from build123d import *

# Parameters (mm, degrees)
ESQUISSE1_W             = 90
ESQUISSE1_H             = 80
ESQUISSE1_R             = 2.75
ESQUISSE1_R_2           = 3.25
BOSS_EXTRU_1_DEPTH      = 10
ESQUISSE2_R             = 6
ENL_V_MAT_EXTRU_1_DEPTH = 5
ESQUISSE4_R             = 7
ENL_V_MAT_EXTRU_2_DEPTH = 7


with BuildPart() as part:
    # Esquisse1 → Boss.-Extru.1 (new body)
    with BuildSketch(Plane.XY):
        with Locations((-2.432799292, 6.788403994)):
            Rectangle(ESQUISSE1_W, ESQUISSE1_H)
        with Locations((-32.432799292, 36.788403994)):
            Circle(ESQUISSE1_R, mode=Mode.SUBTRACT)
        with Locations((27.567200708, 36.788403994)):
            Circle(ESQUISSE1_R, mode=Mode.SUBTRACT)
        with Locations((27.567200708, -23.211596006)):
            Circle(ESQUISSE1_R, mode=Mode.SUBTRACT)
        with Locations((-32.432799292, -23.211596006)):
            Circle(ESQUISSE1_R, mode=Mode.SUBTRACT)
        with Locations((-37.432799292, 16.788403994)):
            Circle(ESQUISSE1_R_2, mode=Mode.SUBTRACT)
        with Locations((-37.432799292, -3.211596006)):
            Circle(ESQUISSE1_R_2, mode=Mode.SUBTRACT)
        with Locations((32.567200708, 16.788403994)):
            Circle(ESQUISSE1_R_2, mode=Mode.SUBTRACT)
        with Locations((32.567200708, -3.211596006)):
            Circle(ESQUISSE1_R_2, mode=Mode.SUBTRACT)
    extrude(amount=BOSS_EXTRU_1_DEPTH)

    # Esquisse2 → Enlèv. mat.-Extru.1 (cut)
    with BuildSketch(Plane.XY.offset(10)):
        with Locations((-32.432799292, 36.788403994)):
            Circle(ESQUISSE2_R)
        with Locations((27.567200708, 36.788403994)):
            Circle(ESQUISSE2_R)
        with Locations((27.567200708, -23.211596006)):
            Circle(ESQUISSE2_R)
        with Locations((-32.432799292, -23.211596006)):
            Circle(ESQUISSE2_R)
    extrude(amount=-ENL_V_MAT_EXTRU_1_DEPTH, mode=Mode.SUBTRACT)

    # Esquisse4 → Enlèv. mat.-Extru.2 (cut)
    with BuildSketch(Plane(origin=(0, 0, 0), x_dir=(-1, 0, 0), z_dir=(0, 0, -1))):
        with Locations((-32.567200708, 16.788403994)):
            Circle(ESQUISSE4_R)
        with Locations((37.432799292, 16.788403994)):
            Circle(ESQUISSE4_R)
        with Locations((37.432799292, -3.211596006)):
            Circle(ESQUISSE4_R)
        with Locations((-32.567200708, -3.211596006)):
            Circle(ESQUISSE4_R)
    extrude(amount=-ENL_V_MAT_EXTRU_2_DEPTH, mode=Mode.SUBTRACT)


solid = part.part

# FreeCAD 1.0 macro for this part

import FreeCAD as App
import Part
import Sketcher
from FreeCAD import Vector

doc = App.newDocument("Part")
body = doc.addObject("PartDesign::Body", "Body")

# Sketch on XY plane
sketch1 = body.newObject("Sketcher::SketchObject", "Sketch")
sketch1.AttachmentSupport = (doc.getObject("XY_Plane"), [""])
sketch1.MapMode = "FlatFace"
sketch1.addGeometry([
    Part.LineSegment(Vector(-47.432799, 46.788404, 0), Vector(-47.432799, -33.211596, 0)),  # 0
    Part.LineSegment(Vector(-47.432799, -33.211596, 0), Vector(42.567201, -33.211596, 0)),  # 1
    Part.LineSegment(Vector(42.567201, -33.211596, 0), Vector(42.567201, 46.788404, 0)),  # 2
    Part.LineSegment(Vector(42.567201, 46.788404, 0), Vector(-47.432799, 46.788404, 0)),  # 3
    Part.Circle(Vector(-32.432799, -23.211596, 0), Vector(0, 0, 1), 2.75),  # 4
    Part.Circle(Vector(-37.432799, -3.211596, 0), Vector(0, 0, 1), 3.25),  # 5
    Part.Circle(Vector(27.567201, -23.211596, 0), Vector(0, 0, 1), 2.75),  # 6
    Part.Circle(Vector(32.567201, -3.211596, 0), Vector(0, 0, 1), 3.25),  # 7
    Part.Circle(Vector(-37.432799, 16.788404, 0), Vector(0, 0, 1), 3.25),  # 8
    Part.Circle(Vector(-32.432799, 36.788404, 0), Vector(0, 0, 1), 2.75),  # 9
    Part.Circle(Vector(32.567201, 16.788404, 0), Vector(0, 0, 1), 3.25),  # 10
    Part.Circle(Vector(27.567201, 36.788404, 0), Vector(0, 0, 1), 2.75),  # 11
], False)
sketch1.addConstraint([
    Sketcher.Constraint("Coincident", 0, 2, 1, 1),
    Sketcher.Constraint("Coincident", 1, 2, 2, 1),
    Sketcher.Constraint("Coincident", 2, 2, 3, 1),
    Sketcher.Constraint("Coincident", 3, 2, 0, 1),
    Sketcher.Constraint("Vertical", 0),
    Sketcher.Constraint("Horizontal", 1),
    Sketcher.Constraint("Vertical", 2),
    Sketcher.Constraint("Horizontal", 3),
    Sketcher.Constraint("Equal", 4, 6),
    Sketcher.Constraint("Equal", 5, 7),
    Sketcher.Constraint("Equal", 7, 8),
    Sketcher.Constraint("Equal", 6, 9),
    Sketcher.Constraint("Equal", 8, 10),
    Sketcher.Constraint("Equal", 9, 11),
    Sketcher.Constraint("Horizontal", 4, 3, 6, 3),
    Sketcher.Constraint("Horizontal", 5, 3, 7, 3),
    Sketcher.Constraint("Horizontal", 8, 3, 10, 3),
    Sketcher.Constraint("Horizontal", 9, 3, 11, 3),
    Sketcher.Constraint("Vertical", 5, 3, 8, 3),
    Sketcher.Constraint("Vertical", 4, 3, 9, 3),
    Sketcher.Constraint("Vertical", 7, 3, 10, 3),
    Sketcher.Constraint("Vertical", 6, 3, 11, 3),
    Sketcher.Constraint("Diameter", 4, 5.5),
    Sketcher.Constraint("Diameter", 5, 6.5),
    Sketcher.Constraint("DistanceX", 1, 1, 1, 2, 90.0),
    Sketcher.Constraint("DistanceY", 0, 2, 0, 1, 80.0),
    Sketcher.Constraint("DistanceX", 5, 3, 4, 3, 5.0),
    Sketcher.Constraint("DistanceY", 4, 3, 5, 3, 20.0),
    Sketcher.Constraint("DistanceX", 4, 3, 6, 3, 60.0),
    Sketcher.Constraint("DistanceX", 6, 3, 7, 3, 5.0),
    Sketcher.Constraint("DistanceY", 5, 3, 8, 3, 20.0),
    Sketcher.Constraint("DistanceY", 8, 3, 9, 3, 20.0),
    Sketcher.Constraint("DistanceX", 0, 2, 4, 3, 15.0),
    Sketcher.Constraint("DistanceY", 0, 2, 4, 3, 10.0),
    Sketcher.Constraint("DistanceX", 4, 3, -1, 1, 32.432799),
    Sketcher.Constraint("DistanceY", 4, 3, -1, 1, 23.211596),
])
pad1 = body.newObject("PartDesign::Pad", "Pad")
pad1.Profile = sketch1
pad1.Length = 10

# Sketch on XY plane
sketch2 = body.newObject("Sketcher::SketchObject", "Sketch001")
sketch2.AttachmentSupport = (doc.getObject("XY_Plane"), [""])
sketch2.MapMode = "FlatFace"
sketch2.AttachmentOffset = App.Placement(Vector(0, 0, 10), App.Rotation())
sketch2.addGeometry([
    Part.Circle(Vector(-32.432799, 36.788404, 0), Vector(0, 0, 1), 6),
    Part.Circle(Vector(27.567201, 36.788404, 0), Vector(0, 0, 1), 6),
    Part.Circle(Vector(27.567201, -23.211596, 0), Vector(0, 0, 1), 6),
    Part.Circle(Vector(-32.432799, -23.211596, 0), Vector(0, 0, 1), 6),
], False)
sketch2.addConstraint([
    Sketcher.Constraint("Equal", 0, 1),
    Sketcher.Constraint("Equal", 1, 2),
    Sketcher.Constraint("Equal", 2, 3),
    Sketcher.Constraint("Horizontal", 0, 3, 1, 3),
    Sketcher.Constraint("Horizontal", 2, 3, 3, 3),
    Sketcher.Constraint("Vertical", 1, 3, 2, 3),
    Sketcher.Constraint("Vertical", 0, 3, 3, 3),
    Sketcher.Constraint("Diameter", 0, 12.0),
    Sketcher.Constraint("DistanceX", 0, 3, 1, 3, 60.0),
    Sketcher.Constraint("DistanceY", 2, 3, 1, 3, 60.0),
    Sketcher.Constraint("DistanceX", 0, 3, -1, 1, 32.432799),
    Sketcher.Constraint("DistanceY", -1, 1, 0, 3, 36.788404),
])
pocket1 = body.newObject("PartDesign::Pocket", "Pocket")
pocket1.Profile = sketch2
pocket1.Length = 5

# Sketch on XY plane
sketch3 = body.newObject("Sketcher::SketchObject", "Sketch002")
sketch3.AttachmentSupport = (doc.getObject("XY_Plane"), [""])
sketch3.MapMode = "FlatFace"
sketch3.addGeometry([
    Part.Circle(Vector(32.567201, 16.788404, 0), Vector(0, 0, 1), 7),
    Part.Circle(Vector(-37.432799, 16.788404, 0), Vector(0, 0, 1), 7),
    Part.Circle(Vector(-37.432799, -3.211596, 0), Vector(0, 0, 1), 7),
    Part.Circle(Vector(32.567201, -3.211596, 0), Vector(0, 0, 1), 7),
], False)
sketch3.addConstraint([
    Sketcher.Constraint("Equal", 0, 1),
    Sketcher.Constraint("Equal", 1, 2),
    Sketcher.Constraint("Equal", 2, 3),
    Sketcher.Constraint("Horizontal", 0, 3, 1, 3),
    Sketcher.Constraint("Horizontal", 2, 3, 3, 3),
    Sketcher.Constraint("Vertical", 1, 3, 2, 3),
    Sketcher.Constraint("Vertical", 0, 3, 3, 3),
    Sketcher.Constraint("Diameter", 0, 14.0),
    Sketcher.Constraint("DistanceX", 1, 3, 0, 3, 70.0),
    Sketcher.Constraint("DistanceY", 2, 3, 1, 3, 20.0),
    Sketcher.Constraint("DistanceX", -1, 1, 0, 3, 32.567201),
    Sketcher.Constraint("DistanceY", -1, 1, 0, 3, 16.788404),
])
pocket2 = body.newObject("PartDesign::Pocket", "Pocket001")
pocket2.Profile = sketch3
pocket2.Length = 7
pocket2.Reversed = True

doc.recompute()
